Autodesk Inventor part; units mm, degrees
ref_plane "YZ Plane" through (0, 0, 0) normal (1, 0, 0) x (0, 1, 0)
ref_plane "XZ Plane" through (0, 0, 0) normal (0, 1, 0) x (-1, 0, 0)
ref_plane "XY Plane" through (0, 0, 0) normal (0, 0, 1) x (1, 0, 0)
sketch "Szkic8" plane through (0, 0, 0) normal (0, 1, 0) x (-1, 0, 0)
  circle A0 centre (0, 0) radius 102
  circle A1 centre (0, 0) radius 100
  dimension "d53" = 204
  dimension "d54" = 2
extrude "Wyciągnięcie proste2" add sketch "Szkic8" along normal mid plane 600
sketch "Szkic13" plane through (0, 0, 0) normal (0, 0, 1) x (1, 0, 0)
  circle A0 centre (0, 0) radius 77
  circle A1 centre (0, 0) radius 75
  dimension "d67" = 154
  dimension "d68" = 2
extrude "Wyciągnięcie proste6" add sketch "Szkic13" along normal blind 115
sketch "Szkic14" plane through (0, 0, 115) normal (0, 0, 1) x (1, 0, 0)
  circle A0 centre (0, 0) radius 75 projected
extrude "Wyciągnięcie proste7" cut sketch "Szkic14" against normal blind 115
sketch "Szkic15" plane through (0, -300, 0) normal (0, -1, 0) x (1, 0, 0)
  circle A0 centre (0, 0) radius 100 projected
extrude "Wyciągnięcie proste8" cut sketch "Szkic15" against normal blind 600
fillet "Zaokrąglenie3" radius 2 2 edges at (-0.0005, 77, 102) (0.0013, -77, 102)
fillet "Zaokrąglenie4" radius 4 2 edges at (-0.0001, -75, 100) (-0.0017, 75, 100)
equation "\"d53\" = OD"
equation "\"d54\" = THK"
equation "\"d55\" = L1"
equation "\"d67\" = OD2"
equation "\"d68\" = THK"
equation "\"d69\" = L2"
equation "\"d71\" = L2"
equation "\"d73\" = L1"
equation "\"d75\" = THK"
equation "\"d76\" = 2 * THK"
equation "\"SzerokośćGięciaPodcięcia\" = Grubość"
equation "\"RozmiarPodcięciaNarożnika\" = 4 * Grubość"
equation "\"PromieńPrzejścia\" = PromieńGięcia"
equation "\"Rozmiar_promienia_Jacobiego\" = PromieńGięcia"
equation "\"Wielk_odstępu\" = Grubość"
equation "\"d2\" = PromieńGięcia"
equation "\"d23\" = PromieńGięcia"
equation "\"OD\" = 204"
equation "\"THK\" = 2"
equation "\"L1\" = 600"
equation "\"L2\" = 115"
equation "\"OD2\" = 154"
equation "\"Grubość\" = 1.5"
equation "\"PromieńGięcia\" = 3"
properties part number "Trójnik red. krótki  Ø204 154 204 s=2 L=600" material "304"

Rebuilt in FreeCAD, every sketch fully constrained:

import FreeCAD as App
import Part
import Sketcher
from FreeCAD import Vector


def edges_at(feature, points):
    """Names of the edges that pass closest to the given points."""
    edges = feature.Shape.Edges
    near = lambda p: min(range(len(edges)), key=lambda i: edges[i].distToShape(Part.Vertex(*p))[0])
    return sorted({f"Edge{near(p) + 1}" for p in points})

doc = App.newDocument("Part")
params = doc.addObject("Spreadsheet::Sheet", "Params")
for row, (alias, value) in enumerate([
    ("sketch1_diameter", "204 mm"),
    ("sketch1_diameter2", "200 mm"),
    ("pad1_length", "600 mm"),
    ("sketch2_diameter", "154 mm"),
    ("sketch2_diameter2", "150 mm"),
    ("pad2_length", "115 mm"),
    ("sketch3_diameter", "150 mm"),
    ("pocket1_length", "115 mm"),
    ("sketch4_diameter", "200 mm"),
    ("pocket2_length", "600 mm"),
    ("fillet_radius", "2 mm"),
    ("fillet2_radius", "4 mm"),
], start=1):
    params.set(f"A{row}", alias)
    params.set(f"B{row}", "=" + value)
    params.setAlias(f"B{row}", alias)

body = doc.addObject("PartDesign::Body", "Body")

# Sketch on XZ plane
sketch1 = doc.addObject("Sketcher::SketchObject", "Sketch")
body.addObject(sketch1)
sketch1.AttachmentSupport = (doc.XZ_Plane, [""])
sketch1.MapMode = "FlatFace"
sketch1.addGeometry([
    Part.Circle(Vector(0, 0, 0), Vector(0, 0, 1), 102),
    Part.Circle(Vector(0, 0, 0), Vector(0, 0, 1), 100),
], False)
sketch1.addConstraint([
    Sketcher.Constraint("Coincident", 0, 3, -1, 1),
    Sketcher.Constraint("Coincident", 1, 3, -1, 1),
    Sketcher.Constraint("Diameter", 0, 204.0),
    Sketcher.Constraint("Diameter", 1, 200.0),
])
sketch1.setExpression("Constraints[2]", "Params.sketch1_diameter")
sketch1.setExpression("Constraints[3]", "Params.sketch1_diameter2")
pad1 = doc.addObject("PartDesign::Pad", "Pad")
body.addObject(pad1)
pad1.Profile = sketch1
pad1.setExpression("Length", "Params.pad1_length")
pad1.Midplane = True

# Sketch on XY plane
sketch2 = doc.addObject("Sketcher::SketchObject", "Sketch001")
body.addObject(sketch2)
sketch2.AttachmentSupport = (doc.XY_Plane, [""])
sketch2.MapMode = "FlatFace"
sketch2.addGeometry([
    Part.Circle(Vector(0, 0, 0), Vector(0, 0, 1), 77),
    Part.Circle(Vector(0, 0, 0), Vector(0, 0, 1), 75),
], False)
sketch2.addConstraint([
    Sketcher.Constraint("Coincident", 0, 3, -1, 1),
    Sketcher.Constraint("Coincident", 1, 3, -1, 1),
    Sketcher.Constraint("Diameter", 0, 154.0),
    Sketcher.Constraint("Diameter", 1, 150.0),
])
sketch2.setExpression("Constraints[2]", "Params.sketch2_diameter")
sketch2.setExpression("Constraints[3]", "Params.sketch2_diameter2")
pad2 = doc.addObject("PartDesign::Pad", "Pad001")
body.addObject(pad2)
pad2.Profile = sketch2
pad2.setExpression("Length", "Params.pad2_length")

# Sketch on XY plane
sketch3 = doc.addObject("Sketcher::SketchObject", "Sketch002")
body.addObject(sketch3)
sketch3.AttachmentSupport = (doc.XY_Plane, [""])
sketch3.MapMode = "FlatFace"
sketch3.AttachmentOffset = App.Placement(Vector(0, 0, 115), App.Rotation())
sketch3.addGeometry(Part.Circle(Vector(0, 0, 0), Vector(0, 0, 1), 75), False)
sketch3.addConstraint([
    Sketcher.Constraint("Coincident", 0, 3, -1, 1),
    Sketcher.Constraint("Diameter", 0, 150.0),
])
sketch3.setExpression("Constraints[1]", "Params.sketch3_diameter")
pocket1 = doc.addObject("PartDesign::Pocket", "Pocket")
body.addObject(pocket1)
pocket1.Profile = sketch3
pocket1.setExpression("Length", "Params.pocket1_length")

# Sketch on XZ plane
sketch4 = doc.addObject("Sketcher::SketchObject", "Sketch003")
body.addObject(sketch4)
sketch4.AttachmentSupport = (doc.XZ_Plane, [""])
sketch4.MapMode = "FlatFace"
sketch4.AttachmentOffset = App.Placement(Vector(0, 0, 300), App.Rotation())
sketch4.addGeometry(Part.Circle(Vector(0, 0, 0), Vector(0, 0, 1), 100), False)
sketch4.addConstraint([
    Sketcher.Constraint("Coincident", 0, 3, -1, 1),
    Sketcher.Constraint("Diameter", 0, 200.0),
])
sketch4.setExpression("Constraints[1]", "Params.sketch4_diameter")
pocket2 = doc.addObject("PartDesign::Pocket", "Pocket001")
body.addObject(pocket2)
pocket2.Profile = sketch4
pocket2.setExpression("Length", "Params.pocket2_length")
doc.recompute()

fillet = doc.addObject("PartDesign::Fillet", "Fillet")
body.addObject(fillet)
fillet.Base = (pocket2, edges_at(pocket2, [(-0.001, 77, 102), (0.001, -77, 102)]))
fillet.setExpression("Radius", "Params.fillet_radius")
doc.recompute()

fillet2 = doc.addObject("PartDesign::Fillet", "Fillet001")
body.addObject(fillet2)
fillet2.Base = (fillet, edges_at(fillet, [(0, -75, 100), (-0.002, 75, 100)]))
fillet2.setExpression("Radius", "Params.fillet2_radius")

doc.recompute()
